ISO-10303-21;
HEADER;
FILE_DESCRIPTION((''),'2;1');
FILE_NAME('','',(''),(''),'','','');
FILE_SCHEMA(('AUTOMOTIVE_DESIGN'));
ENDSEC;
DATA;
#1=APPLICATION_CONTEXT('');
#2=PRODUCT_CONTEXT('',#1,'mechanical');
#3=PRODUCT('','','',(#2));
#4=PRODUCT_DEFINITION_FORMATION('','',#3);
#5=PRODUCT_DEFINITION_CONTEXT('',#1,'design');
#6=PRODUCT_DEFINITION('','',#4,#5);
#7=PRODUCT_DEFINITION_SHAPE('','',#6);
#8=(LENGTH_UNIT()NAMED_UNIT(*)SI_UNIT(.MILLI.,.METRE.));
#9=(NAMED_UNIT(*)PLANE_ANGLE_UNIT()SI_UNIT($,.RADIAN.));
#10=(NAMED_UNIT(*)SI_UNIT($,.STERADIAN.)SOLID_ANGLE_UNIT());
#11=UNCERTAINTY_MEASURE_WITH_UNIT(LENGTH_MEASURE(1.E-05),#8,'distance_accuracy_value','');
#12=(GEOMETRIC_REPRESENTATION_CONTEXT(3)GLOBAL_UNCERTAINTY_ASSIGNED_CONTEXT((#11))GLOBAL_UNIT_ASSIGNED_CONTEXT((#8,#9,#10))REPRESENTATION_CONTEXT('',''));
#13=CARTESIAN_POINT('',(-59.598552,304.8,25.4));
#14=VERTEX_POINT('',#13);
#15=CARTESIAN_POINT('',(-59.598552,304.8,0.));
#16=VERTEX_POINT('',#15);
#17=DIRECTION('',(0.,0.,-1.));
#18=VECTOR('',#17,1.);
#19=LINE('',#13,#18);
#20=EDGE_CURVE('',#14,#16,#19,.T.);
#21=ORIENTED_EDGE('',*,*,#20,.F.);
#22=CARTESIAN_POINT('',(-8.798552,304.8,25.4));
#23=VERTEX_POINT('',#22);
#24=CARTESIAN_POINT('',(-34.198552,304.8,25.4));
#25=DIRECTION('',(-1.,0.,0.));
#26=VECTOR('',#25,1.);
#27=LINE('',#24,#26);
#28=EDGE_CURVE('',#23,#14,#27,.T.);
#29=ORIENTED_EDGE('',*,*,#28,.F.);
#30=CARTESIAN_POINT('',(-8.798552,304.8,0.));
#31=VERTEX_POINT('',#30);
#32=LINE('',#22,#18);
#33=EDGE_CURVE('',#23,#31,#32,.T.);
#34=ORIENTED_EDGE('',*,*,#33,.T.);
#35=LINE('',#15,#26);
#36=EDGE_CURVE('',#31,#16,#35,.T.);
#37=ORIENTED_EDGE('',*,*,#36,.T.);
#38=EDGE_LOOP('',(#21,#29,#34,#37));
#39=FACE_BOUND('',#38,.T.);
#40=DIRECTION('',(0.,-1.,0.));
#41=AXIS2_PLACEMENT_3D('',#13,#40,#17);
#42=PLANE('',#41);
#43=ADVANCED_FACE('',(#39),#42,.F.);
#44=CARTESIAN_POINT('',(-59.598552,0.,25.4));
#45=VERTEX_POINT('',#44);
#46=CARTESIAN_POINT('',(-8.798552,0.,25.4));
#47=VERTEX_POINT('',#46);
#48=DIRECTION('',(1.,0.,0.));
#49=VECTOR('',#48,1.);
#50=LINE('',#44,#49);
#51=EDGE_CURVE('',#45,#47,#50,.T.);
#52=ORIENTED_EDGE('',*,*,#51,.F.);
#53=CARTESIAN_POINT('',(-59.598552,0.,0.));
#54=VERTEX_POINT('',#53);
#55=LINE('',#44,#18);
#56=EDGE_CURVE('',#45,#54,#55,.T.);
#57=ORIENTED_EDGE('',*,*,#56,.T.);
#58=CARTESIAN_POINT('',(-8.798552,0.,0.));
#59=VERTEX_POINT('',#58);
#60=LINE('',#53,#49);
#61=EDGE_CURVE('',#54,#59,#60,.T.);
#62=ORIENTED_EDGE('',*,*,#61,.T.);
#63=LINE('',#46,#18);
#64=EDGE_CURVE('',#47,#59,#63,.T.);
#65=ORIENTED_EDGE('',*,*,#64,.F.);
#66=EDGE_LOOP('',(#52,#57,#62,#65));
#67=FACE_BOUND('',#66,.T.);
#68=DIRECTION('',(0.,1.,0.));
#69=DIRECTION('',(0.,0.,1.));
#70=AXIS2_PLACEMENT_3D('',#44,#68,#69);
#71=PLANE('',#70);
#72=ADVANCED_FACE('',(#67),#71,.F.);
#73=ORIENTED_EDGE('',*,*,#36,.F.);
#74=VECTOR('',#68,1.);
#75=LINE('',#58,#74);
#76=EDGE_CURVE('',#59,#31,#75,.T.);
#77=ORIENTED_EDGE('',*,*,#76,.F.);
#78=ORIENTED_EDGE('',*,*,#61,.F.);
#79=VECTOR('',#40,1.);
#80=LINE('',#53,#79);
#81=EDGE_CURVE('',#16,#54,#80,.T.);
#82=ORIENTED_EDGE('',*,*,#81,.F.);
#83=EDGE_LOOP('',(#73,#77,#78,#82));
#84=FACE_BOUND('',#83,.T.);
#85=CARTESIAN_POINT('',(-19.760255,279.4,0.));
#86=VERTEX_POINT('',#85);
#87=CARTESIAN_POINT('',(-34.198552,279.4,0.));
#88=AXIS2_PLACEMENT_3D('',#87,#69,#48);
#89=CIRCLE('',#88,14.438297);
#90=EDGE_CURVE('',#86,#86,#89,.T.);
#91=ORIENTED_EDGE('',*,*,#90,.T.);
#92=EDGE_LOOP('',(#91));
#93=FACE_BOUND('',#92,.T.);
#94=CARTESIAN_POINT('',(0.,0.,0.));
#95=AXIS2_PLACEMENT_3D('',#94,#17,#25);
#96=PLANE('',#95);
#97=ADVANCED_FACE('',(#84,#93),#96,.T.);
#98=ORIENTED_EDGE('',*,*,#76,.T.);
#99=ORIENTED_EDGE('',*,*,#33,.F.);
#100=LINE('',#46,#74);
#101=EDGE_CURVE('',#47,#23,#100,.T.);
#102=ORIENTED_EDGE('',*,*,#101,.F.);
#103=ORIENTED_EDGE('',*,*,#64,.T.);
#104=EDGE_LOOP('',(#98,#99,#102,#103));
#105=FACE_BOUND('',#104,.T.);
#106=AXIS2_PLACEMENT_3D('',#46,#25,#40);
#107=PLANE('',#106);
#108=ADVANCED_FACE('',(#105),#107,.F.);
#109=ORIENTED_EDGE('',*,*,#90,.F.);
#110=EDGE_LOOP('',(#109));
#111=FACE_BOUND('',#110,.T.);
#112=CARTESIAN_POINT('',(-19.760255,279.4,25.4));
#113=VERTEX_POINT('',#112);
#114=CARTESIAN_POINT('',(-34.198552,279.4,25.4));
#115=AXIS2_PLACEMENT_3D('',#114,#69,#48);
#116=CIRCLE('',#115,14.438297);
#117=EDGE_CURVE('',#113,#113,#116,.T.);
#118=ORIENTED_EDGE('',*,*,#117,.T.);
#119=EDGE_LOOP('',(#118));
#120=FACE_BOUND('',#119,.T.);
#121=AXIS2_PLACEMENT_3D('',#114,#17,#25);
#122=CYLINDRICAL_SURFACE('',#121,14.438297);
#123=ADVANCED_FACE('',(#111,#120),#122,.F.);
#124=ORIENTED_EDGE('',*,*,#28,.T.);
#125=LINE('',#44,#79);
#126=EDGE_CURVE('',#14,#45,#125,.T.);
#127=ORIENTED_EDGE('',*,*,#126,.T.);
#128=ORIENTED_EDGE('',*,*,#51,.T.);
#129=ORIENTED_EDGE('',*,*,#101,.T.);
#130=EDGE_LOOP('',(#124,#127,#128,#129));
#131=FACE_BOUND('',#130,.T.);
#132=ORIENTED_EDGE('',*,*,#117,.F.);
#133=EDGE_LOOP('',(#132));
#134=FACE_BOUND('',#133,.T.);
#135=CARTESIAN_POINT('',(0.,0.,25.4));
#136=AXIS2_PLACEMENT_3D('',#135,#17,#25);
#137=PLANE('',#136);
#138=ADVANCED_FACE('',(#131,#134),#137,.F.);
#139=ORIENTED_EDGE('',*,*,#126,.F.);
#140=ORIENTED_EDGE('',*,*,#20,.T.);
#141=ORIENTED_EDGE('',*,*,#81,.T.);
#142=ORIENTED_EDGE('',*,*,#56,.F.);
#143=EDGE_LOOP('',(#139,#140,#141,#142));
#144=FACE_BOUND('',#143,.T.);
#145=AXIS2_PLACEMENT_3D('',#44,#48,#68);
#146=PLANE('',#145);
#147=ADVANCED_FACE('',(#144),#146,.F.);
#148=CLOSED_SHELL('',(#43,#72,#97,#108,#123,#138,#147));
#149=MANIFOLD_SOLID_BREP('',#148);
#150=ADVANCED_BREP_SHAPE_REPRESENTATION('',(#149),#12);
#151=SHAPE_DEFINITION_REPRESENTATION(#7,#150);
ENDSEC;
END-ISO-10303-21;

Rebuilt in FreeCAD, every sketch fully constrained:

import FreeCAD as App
import Part
import Sketcher
from FreeCAD import Vector
Q = App.Units.Quantity

doc = App.newDocument("Part")
params = doc.addObject("Spreadsheet::Sheet", "Params")
for row, (alias, value) in enumerate([
    ("sketch1_width", "2 in"),
    ("sketch1_height", "12 in"),
    ("pad1_length", "1 in"),
], start=1):
    params.set(f"A{row}", alias)
    params.set(f"B{row}", "=" + value)
    params.setAlias(f"B{row}", alias)

body = doc.addObject("PartDesign::Body", "Body")

# Sketch on XY plane
sketch1 = body.newObject("Sketcher::SketchObject", "Sketch")
sketch1.AttachmentSupport = (doc.getObject("XY_Plane"), [""])
sketch1.MapMode = "FlatFace"
sketch1.addGeometry([
    Part.LineSegment(Vector(-60, 0, 0), Vector(-9, 0, 0)),  # 0
    Part.LineSegment(Vector(-9, 0, 0), Vector(-9, 305, 0)),  # 1
    Part.LineSegment(Vector(-9, 305, 0), Vector(-60, 305, 0)),  # 2
    Part.LineSegment(Vector(-60, 305, 0), Vector(-60, 0, 0)),  # 3
    Part.Circle(Vector(-34, 279, 0), Vector(0, 0, 1), 14),  # 4
], False)
sketch1.addConstraint([
    Sketcher.Constraint("Coincident", 0, 2, 1, 1),
    Sketcher.Constraint("Coincident", 1, 2, 2, 1),
    Sketcher.Constraint("Coincident", 2, 2, 3, 1),
    Sketcher.Constraint("Coincident", 3, 2, 0, 1),
    Sketcher.Constraint("Horizontal", 0),
    Sketcher.Constraint("Vertical", 1),
    Sketcher.Constraint("Horizontal", 2),
    Sketcher.Constraint("Vertical", 3),
    Sketcher.Constraint("PointOnObject", 0, 2, -1),
    Sketcher.Constraint("DistanceX", 0, 1, 0, 2, Q("2 in")),
    Sketcher.Constraint("DistanceY", 1, 1, 1, 2, Q("12 in")),
    Sketcher.Constraint("DistanceY", -1, 1, 4, 3, Q("11 in")),
    Sketcher.Constraint("DistanceX", 4, 3, 0, 2, Q("1 in")),
    Sketcher.Constraint("Diameter", 4, Q("28.876595 mm")),
    Sketcher.Constraint("DistanceX", 4, 3, -1, 1, Q("34.198552 mm")),
])
sketch1.setExpression("Constraints[9]", "Params.sketch1_width")
sketch1.setExpression("Constraints[10]", "Params.sketch1_height")
pad1 = body.newObject("PartDesign::Pad", "Pad")
pad1.Profile = sketch1
pad1.setExpression("Length", "Params.pad1_length")

doc.recompute()
